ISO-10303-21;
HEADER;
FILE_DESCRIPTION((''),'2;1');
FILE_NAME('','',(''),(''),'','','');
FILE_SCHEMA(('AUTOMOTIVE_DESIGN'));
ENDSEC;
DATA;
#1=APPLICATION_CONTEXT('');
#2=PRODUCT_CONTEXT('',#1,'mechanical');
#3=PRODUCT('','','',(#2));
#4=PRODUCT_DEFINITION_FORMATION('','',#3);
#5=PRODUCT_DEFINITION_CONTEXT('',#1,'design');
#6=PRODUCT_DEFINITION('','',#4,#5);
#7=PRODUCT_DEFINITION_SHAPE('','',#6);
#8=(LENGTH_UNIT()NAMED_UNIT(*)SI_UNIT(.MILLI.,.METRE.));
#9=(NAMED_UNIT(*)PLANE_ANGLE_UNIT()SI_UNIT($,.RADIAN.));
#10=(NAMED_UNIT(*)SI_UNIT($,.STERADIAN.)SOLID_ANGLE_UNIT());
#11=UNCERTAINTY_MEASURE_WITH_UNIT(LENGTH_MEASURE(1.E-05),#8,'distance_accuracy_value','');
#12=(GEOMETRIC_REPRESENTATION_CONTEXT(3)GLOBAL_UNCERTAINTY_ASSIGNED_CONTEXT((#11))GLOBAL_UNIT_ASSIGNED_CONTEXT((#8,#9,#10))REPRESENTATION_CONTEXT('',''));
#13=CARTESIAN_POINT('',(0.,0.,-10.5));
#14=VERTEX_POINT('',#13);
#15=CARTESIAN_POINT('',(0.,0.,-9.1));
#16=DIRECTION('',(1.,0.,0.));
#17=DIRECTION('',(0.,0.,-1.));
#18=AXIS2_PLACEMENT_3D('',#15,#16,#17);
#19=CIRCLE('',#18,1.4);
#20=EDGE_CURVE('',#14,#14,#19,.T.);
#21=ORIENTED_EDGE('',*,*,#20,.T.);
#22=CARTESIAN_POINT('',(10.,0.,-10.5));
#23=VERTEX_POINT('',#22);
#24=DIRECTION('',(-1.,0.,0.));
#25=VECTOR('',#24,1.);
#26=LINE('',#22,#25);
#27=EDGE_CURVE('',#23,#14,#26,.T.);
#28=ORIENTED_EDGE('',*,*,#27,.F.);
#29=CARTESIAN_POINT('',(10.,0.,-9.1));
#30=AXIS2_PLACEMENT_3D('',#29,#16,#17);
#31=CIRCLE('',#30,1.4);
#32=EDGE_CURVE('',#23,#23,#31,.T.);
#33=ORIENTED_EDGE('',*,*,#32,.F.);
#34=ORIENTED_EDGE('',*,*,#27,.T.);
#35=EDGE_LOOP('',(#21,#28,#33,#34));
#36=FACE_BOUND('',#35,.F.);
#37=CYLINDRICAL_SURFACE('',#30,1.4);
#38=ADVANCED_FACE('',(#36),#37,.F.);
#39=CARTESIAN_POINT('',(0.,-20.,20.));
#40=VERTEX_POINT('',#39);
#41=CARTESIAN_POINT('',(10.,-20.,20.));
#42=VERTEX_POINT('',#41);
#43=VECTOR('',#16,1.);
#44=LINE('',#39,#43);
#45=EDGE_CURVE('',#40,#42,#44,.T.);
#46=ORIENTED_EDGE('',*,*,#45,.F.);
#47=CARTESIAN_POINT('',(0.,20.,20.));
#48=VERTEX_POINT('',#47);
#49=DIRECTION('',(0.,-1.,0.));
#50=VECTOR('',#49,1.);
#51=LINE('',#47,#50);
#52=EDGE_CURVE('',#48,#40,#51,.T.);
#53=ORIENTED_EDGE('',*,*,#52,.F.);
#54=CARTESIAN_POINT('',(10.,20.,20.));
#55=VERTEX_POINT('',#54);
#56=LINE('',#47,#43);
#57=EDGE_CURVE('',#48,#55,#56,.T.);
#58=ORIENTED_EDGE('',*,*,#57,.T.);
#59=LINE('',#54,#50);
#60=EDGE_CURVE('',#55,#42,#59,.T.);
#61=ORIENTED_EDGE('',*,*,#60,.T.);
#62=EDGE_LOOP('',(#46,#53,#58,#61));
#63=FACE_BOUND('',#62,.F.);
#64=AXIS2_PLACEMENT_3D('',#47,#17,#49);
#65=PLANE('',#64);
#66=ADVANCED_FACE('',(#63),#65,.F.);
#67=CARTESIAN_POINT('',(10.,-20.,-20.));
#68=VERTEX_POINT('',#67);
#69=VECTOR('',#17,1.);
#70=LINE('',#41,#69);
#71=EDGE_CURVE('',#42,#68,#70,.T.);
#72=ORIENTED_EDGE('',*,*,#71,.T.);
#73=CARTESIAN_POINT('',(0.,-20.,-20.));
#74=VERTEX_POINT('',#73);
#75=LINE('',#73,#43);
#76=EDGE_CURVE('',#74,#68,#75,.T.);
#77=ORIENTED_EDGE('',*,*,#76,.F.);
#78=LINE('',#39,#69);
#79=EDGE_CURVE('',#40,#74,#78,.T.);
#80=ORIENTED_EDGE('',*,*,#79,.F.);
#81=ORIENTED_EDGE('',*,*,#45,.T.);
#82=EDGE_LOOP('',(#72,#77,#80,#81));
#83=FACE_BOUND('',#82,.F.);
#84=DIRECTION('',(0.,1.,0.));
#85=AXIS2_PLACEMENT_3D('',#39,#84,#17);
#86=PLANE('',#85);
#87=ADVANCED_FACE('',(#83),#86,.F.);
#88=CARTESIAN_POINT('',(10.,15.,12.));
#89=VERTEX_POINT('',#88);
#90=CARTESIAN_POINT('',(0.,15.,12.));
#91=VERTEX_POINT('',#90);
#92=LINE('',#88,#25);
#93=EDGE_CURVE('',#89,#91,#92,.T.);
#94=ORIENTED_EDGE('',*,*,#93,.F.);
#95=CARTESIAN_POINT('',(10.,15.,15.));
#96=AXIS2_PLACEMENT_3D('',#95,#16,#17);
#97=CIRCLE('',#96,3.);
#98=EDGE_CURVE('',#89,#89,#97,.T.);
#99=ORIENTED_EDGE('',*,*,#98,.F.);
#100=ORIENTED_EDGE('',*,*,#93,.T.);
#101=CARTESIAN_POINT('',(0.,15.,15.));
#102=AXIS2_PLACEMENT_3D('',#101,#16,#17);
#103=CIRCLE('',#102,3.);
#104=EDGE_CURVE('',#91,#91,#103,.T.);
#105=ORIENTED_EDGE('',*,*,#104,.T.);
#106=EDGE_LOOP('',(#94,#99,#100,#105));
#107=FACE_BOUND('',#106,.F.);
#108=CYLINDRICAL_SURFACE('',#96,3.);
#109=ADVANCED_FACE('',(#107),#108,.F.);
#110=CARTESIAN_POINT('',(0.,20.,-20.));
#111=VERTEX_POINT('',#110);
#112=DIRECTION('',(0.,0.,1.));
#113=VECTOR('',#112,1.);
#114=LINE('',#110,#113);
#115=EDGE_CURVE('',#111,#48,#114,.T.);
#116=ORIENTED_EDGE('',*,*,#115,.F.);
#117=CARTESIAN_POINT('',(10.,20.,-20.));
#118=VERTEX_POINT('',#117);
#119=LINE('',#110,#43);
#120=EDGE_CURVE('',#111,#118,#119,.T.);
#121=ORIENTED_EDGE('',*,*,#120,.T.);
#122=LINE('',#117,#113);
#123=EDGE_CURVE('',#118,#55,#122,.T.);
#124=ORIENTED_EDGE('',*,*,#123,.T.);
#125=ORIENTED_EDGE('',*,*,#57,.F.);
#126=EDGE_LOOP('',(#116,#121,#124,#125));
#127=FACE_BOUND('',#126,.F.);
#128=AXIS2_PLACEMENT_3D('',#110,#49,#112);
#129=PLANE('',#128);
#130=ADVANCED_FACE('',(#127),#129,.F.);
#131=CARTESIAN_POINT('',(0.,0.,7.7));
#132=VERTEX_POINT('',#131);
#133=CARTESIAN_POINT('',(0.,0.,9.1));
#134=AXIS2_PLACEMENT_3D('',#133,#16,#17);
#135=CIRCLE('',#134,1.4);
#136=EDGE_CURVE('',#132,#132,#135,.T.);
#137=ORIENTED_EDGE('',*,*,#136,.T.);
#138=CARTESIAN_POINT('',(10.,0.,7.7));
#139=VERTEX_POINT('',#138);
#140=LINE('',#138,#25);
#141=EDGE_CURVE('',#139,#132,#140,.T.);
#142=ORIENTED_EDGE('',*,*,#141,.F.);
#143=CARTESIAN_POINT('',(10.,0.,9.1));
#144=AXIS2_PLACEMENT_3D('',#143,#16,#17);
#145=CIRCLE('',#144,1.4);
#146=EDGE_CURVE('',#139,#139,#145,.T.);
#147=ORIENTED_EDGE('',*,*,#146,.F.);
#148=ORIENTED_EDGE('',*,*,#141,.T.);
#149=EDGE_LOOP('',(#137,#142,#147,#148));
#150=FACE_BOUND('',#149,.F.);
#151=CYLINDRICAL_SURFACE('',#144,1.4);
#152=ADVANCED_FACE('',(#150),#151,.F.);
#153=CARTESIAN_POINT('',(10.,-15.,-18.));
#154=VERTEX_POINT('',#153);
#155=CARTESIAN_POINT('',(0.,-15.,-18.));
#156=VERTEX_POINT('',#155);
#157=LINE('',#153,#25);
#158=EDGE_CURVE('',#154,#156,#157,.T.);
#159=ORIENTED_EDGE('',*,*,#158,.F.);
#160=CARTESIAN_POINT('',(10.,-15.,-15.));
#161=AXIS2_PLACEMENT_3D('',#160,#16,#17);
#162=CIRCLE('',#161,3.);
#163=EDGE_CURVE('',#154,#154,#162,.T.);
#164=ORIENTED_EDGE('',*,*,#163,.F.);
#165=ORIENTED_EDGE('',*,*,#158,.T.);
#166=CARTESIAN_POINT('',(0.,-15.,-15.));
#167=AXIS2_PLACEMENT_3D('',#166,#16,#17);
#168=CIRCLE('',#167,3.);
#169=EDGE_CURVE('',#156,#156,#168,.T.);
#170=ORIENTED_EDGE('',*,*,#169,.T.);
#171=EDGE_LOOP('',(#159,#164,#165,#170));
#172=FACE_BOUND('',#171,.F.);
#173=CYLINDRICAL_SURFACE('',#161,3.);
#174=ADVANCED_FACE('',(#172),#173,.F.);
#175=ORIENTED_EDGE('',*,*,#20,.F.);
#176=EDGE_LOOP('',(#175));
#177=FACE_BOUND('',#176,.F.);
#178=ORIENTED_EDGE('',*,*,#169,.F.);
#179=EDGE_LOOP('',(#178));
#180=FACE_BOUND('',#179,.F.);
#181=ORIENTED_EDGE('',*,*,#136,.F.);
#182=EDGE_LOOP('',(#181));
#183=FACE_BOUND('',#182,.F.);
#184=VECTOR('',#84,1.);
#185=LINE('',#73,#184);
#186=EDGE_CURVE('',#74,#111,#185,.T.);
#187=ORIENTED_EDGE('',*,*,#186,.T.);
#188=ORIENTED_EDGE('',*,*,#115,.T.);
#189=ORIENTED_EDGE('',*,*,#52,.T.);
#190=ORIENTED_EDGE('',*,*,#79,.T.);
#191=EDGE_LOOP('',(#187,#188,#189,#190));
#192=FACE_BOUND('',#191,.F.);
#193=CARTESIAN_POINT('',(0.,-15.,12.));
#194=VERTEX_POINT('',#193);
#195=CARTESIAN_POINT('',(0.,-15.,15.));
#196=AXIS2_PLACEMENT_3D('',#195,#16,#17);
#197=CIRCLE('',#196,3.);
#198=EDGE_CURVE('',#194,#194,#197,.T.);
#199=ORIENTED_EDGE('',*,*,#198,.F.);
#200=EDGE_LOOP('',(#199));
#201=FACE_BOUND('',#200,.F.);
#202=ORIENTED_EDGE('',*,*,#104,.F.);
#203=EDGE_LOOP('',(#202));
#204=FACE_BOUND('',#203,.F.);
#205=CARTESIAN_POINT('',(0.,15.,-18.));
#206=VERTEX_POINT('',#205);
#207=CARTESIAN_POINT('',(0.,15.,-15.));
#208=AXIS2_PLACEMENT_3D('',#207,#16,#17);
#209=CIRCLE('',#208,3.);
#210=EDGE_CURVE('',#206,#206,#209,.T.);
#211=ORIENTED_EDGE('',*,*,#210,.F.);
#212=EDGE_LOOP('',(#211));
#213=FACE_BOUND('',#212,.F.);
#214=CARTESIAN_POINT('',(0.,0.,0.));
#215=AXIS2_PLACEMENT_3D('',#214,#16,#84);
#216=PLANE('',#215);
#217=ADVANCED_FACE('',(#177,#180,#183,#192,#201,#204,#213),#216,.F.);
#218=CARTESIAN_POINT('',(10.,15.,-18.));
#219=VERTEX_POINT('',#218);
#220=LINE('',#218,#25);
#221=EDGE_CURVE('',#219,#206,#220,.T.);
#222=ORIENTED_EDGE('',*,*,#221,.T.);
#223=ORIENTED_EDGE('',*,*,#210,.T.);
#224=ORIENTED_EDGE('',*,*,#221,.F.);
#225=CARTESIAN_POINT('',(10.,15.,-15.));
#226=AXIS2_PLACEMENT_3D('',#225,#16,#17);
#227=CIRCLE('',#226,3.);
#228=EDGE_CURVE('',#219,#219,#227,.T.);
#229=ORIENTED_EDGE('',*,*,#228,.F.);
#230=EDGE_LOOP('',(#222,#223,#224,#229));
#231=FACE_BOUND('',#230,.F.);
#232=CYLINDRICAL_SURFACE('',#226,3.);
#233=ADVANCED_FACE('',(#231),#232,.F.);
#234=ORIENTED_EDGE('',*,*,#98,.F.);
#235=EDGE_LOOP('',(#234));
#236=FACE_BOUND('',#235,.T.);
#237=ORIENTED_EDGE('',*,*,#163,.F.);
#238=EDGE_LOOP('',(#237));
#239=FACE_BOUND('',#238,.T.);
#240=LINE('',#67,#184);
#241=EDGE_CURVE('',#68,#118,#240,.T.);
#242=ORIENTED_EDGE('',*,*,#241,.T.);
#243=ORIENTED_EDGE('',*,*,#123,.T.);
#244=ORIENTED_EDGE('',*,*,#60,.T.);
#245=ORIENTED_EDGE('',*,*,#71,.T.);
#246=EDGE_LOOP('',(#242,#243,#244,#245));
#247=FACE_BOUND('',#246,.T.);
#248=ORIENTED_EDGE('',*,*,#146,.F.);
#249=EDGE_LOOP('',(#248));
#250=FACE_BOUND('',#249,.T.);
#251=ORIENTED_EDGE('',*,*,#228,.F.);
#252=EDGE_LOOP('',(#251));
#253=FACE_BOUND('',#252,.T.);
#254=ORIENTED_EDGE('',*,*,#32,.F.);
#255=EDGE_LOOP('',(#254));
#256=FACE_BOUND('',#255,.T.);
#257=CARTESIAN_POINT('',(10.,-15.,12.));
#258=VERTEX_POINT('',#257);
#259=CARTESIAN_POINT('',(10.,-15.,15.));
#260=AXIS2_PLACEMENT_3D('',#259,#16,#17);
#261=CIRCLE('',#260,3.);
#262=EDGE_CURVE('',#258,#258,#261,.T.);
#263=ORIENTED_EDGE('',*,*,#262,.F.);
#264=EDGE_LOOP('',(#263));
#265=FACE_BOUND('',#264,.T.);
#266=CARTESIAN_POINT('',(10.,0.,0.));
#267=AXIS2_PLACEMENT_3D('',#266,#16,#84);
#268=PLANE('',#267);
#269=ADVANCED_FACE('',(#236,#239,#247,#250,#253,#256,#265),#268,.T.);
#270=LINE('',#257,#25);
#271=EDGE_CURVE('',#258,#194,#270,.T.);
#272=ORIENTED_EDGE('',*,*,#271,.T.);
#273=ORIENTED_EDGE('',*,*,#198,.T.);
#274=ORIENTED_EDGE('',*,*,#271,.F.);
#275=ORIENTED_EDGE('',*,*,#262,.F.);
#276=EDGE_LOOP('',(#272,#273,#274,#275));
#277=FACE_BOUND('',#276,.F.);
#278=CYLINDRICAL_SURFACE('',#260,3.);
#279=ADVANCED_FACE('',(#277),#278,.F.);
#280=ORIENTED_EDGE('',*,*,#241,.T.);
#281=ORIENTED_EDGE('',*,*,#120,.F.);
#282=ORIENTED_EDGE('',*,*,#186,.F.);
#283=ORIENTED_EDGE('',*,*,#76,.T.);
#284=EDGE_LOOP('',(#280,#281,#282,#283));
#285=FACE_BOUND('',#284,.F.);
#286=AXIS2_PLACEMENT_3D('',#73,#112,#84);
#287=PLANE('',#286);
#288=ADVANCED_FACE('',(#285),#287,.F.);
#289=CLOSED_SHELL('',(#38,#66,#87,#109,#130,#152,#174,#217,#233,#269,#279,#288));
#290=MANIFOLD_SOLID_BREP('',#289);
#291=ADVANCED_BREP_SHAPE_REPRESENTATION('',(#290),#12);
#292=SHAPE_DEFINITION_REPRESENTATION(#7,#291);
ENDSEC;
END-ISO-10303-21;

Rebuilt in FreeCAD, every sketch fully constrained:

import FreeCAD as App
import Part
import Sketcher

V = App.Vector


def add_polygon(sketch, points):
    """Adds a closed chain of lines whose ends are joined by coincident constraints."""
    first, n = sketch.GeometryCount, len(points)
    for a, b in zip(points, points[1:] + points[:1]):
        sketch.addGeometry(Part.LineSegment(App.Vector(*a, 0), App.Vector(*b, 0)), False)
    for i in range(n):
        sketch.addConstraint(Sketcher.Constraint("Coincident", first + i, 2, first + (i + 1) % n, 1))

doc = App.newDocument("Part")
body = doc.addObject("PartDesign::Body", "Body")

# Sketch on YZ plane
sketch1 = body.newObject("Sketcher::SketchObject", "Sketch")
sketch1.AttachmentSupport = (doc.getObject("YZ_Plane"), [""])
sketch1.MapMode = "FlatFace"
add_polygon(sketch1, [(20, -20), (20, 20), (-20, 20), (-20, -20)])  # lines 0-3
sketch1.addConstraint(Sketcher.Constraint("Vertical", 0))
sketch1.addConstraint(Sketcher.Constraint("Horizontal", 1))
sketch1.addConstraint(Sketcher.Constraint("Vertical", 2))
sketch1.addConstraint(Sketcher.Constraint("Horizontal", 3))
sketch1.addConstraint(Sketcher.Constraint("Symmetric", 0, 2, 2, 2, -1, 1))
sketch1.addConstraint(Sketcher.Constraint("Equal", 3, 0))
sketch1.addConstraint(Sketcher.Constraint("DistanceX", 1, 2, 1, 1, 40.0))
pad1 = body.newObject("PartDesign::Pad", "Pad")
pad1.Profile = sketch1
pad1.Length = 10

# Sketch on YZ plane
sketch2 = body.newObject("Sketcher::SketchObject", "Sketch001")
sketch2.AttachmentSupport = (doc.getObject("YZ_Plane"), [""])
sketch2.MapMode = "FlatFace"
sketch2.AttachmentOffset = App.Placement(V(0, 0, 10), App.Rotation())
sketch2.addGeometry(Part.Circle(V(15, 15, 0), V(0, 0, 1), 3), False)
sketch2.addGeometry(Part.Circle(V(-15, 15, 0), V(0, 0, 1), 3), False)
sketch2.addGeometry(Part.Circle(V(-15, -15, 0), V(0, 0, 1), 3), False)
sketch2.addGeometry(Part.Circle(V(15, -15, 0), V(0, 0, 1), 3), False)
sketch2.addConstraint(Sketcher.Constraint("Equal", 0, 1))
sketch2.addConstraint(Sketcher.Constraint("Equal", 1, 2))
sketch2.addConstraint(Sketcher.Constraint("Equal", 2, 3))
sketch2.addConstraint(Sketcher.Constraint("Symmetric", 0, 3, 2, 3, -1, 1))
sketch2.addConstraint(Sketcher.Constraint("Symmetric", 1, 3, 3, 3, -1, 1))
sketch2.addConstraint(Sketcher.Constraint("Symmetric", 0, 3, 1, 3, -2))
sketch2.addConstraint(Sketcher.Constraint("Diameter", 0, 6.0))
sketch2.addConstraint(Sketcher.Constraint("DistanceX", -1, 1, 0, 3, 15.0))
sketch2.addConstraint(Sketcher.Constraint("DistanceY", -1, 1, 0, 3, 15.0))
pocket1 = body.newObject("PartDesign::Pocket", "Pocket")
pocket1.Profile = sketch2
pocket1.Type = "ThroughAll"

# Sketch on YZ plane
sketch3 = body.newObject("Sketcher::SketchObject", "Sketch002")
sketch3.AttachmentSupport = (doc.getObject("YZ_Plane"), [""])
sketch3.MapMode = "FlatFace"
sketch3.AttachmentOffset = App.Placement(V(0, 0, 10), App.Rotation())
sketch3.addGeometry(Part.Circle(V(0, 9.1, 0), V(0, 0, 1), 1.4), False)
sketch3.addGeometry(Part.Circle(V(0, -9.1, 0), V(0, 0, 1), 1.4), False)
sketch3.addConstraint(Sketcher.Constraint("Equal", 0, 1))
sketch3.addConstraint(Sketcher.Constraint("Symmetric", 0, 3, 1, 3, -1, 1))
sketch3.addConstraint(Sketcher.Constraint("PointOnObject", 0, 3, -2))
sketch3.addConstraint(Sketcher.Constraint("Diameter", 0, 2.8))
sketch3.addConstraint(Sketcher.Constraint("DistanceY", -1, 1, 0, 3, 9.1))
pocket2 = body.newObject("PartDesign::Pocket", "Pocket001")
pocket2.Profile = sketch3
pocket2.Type = "ThroughAll"

doc.recompute()
